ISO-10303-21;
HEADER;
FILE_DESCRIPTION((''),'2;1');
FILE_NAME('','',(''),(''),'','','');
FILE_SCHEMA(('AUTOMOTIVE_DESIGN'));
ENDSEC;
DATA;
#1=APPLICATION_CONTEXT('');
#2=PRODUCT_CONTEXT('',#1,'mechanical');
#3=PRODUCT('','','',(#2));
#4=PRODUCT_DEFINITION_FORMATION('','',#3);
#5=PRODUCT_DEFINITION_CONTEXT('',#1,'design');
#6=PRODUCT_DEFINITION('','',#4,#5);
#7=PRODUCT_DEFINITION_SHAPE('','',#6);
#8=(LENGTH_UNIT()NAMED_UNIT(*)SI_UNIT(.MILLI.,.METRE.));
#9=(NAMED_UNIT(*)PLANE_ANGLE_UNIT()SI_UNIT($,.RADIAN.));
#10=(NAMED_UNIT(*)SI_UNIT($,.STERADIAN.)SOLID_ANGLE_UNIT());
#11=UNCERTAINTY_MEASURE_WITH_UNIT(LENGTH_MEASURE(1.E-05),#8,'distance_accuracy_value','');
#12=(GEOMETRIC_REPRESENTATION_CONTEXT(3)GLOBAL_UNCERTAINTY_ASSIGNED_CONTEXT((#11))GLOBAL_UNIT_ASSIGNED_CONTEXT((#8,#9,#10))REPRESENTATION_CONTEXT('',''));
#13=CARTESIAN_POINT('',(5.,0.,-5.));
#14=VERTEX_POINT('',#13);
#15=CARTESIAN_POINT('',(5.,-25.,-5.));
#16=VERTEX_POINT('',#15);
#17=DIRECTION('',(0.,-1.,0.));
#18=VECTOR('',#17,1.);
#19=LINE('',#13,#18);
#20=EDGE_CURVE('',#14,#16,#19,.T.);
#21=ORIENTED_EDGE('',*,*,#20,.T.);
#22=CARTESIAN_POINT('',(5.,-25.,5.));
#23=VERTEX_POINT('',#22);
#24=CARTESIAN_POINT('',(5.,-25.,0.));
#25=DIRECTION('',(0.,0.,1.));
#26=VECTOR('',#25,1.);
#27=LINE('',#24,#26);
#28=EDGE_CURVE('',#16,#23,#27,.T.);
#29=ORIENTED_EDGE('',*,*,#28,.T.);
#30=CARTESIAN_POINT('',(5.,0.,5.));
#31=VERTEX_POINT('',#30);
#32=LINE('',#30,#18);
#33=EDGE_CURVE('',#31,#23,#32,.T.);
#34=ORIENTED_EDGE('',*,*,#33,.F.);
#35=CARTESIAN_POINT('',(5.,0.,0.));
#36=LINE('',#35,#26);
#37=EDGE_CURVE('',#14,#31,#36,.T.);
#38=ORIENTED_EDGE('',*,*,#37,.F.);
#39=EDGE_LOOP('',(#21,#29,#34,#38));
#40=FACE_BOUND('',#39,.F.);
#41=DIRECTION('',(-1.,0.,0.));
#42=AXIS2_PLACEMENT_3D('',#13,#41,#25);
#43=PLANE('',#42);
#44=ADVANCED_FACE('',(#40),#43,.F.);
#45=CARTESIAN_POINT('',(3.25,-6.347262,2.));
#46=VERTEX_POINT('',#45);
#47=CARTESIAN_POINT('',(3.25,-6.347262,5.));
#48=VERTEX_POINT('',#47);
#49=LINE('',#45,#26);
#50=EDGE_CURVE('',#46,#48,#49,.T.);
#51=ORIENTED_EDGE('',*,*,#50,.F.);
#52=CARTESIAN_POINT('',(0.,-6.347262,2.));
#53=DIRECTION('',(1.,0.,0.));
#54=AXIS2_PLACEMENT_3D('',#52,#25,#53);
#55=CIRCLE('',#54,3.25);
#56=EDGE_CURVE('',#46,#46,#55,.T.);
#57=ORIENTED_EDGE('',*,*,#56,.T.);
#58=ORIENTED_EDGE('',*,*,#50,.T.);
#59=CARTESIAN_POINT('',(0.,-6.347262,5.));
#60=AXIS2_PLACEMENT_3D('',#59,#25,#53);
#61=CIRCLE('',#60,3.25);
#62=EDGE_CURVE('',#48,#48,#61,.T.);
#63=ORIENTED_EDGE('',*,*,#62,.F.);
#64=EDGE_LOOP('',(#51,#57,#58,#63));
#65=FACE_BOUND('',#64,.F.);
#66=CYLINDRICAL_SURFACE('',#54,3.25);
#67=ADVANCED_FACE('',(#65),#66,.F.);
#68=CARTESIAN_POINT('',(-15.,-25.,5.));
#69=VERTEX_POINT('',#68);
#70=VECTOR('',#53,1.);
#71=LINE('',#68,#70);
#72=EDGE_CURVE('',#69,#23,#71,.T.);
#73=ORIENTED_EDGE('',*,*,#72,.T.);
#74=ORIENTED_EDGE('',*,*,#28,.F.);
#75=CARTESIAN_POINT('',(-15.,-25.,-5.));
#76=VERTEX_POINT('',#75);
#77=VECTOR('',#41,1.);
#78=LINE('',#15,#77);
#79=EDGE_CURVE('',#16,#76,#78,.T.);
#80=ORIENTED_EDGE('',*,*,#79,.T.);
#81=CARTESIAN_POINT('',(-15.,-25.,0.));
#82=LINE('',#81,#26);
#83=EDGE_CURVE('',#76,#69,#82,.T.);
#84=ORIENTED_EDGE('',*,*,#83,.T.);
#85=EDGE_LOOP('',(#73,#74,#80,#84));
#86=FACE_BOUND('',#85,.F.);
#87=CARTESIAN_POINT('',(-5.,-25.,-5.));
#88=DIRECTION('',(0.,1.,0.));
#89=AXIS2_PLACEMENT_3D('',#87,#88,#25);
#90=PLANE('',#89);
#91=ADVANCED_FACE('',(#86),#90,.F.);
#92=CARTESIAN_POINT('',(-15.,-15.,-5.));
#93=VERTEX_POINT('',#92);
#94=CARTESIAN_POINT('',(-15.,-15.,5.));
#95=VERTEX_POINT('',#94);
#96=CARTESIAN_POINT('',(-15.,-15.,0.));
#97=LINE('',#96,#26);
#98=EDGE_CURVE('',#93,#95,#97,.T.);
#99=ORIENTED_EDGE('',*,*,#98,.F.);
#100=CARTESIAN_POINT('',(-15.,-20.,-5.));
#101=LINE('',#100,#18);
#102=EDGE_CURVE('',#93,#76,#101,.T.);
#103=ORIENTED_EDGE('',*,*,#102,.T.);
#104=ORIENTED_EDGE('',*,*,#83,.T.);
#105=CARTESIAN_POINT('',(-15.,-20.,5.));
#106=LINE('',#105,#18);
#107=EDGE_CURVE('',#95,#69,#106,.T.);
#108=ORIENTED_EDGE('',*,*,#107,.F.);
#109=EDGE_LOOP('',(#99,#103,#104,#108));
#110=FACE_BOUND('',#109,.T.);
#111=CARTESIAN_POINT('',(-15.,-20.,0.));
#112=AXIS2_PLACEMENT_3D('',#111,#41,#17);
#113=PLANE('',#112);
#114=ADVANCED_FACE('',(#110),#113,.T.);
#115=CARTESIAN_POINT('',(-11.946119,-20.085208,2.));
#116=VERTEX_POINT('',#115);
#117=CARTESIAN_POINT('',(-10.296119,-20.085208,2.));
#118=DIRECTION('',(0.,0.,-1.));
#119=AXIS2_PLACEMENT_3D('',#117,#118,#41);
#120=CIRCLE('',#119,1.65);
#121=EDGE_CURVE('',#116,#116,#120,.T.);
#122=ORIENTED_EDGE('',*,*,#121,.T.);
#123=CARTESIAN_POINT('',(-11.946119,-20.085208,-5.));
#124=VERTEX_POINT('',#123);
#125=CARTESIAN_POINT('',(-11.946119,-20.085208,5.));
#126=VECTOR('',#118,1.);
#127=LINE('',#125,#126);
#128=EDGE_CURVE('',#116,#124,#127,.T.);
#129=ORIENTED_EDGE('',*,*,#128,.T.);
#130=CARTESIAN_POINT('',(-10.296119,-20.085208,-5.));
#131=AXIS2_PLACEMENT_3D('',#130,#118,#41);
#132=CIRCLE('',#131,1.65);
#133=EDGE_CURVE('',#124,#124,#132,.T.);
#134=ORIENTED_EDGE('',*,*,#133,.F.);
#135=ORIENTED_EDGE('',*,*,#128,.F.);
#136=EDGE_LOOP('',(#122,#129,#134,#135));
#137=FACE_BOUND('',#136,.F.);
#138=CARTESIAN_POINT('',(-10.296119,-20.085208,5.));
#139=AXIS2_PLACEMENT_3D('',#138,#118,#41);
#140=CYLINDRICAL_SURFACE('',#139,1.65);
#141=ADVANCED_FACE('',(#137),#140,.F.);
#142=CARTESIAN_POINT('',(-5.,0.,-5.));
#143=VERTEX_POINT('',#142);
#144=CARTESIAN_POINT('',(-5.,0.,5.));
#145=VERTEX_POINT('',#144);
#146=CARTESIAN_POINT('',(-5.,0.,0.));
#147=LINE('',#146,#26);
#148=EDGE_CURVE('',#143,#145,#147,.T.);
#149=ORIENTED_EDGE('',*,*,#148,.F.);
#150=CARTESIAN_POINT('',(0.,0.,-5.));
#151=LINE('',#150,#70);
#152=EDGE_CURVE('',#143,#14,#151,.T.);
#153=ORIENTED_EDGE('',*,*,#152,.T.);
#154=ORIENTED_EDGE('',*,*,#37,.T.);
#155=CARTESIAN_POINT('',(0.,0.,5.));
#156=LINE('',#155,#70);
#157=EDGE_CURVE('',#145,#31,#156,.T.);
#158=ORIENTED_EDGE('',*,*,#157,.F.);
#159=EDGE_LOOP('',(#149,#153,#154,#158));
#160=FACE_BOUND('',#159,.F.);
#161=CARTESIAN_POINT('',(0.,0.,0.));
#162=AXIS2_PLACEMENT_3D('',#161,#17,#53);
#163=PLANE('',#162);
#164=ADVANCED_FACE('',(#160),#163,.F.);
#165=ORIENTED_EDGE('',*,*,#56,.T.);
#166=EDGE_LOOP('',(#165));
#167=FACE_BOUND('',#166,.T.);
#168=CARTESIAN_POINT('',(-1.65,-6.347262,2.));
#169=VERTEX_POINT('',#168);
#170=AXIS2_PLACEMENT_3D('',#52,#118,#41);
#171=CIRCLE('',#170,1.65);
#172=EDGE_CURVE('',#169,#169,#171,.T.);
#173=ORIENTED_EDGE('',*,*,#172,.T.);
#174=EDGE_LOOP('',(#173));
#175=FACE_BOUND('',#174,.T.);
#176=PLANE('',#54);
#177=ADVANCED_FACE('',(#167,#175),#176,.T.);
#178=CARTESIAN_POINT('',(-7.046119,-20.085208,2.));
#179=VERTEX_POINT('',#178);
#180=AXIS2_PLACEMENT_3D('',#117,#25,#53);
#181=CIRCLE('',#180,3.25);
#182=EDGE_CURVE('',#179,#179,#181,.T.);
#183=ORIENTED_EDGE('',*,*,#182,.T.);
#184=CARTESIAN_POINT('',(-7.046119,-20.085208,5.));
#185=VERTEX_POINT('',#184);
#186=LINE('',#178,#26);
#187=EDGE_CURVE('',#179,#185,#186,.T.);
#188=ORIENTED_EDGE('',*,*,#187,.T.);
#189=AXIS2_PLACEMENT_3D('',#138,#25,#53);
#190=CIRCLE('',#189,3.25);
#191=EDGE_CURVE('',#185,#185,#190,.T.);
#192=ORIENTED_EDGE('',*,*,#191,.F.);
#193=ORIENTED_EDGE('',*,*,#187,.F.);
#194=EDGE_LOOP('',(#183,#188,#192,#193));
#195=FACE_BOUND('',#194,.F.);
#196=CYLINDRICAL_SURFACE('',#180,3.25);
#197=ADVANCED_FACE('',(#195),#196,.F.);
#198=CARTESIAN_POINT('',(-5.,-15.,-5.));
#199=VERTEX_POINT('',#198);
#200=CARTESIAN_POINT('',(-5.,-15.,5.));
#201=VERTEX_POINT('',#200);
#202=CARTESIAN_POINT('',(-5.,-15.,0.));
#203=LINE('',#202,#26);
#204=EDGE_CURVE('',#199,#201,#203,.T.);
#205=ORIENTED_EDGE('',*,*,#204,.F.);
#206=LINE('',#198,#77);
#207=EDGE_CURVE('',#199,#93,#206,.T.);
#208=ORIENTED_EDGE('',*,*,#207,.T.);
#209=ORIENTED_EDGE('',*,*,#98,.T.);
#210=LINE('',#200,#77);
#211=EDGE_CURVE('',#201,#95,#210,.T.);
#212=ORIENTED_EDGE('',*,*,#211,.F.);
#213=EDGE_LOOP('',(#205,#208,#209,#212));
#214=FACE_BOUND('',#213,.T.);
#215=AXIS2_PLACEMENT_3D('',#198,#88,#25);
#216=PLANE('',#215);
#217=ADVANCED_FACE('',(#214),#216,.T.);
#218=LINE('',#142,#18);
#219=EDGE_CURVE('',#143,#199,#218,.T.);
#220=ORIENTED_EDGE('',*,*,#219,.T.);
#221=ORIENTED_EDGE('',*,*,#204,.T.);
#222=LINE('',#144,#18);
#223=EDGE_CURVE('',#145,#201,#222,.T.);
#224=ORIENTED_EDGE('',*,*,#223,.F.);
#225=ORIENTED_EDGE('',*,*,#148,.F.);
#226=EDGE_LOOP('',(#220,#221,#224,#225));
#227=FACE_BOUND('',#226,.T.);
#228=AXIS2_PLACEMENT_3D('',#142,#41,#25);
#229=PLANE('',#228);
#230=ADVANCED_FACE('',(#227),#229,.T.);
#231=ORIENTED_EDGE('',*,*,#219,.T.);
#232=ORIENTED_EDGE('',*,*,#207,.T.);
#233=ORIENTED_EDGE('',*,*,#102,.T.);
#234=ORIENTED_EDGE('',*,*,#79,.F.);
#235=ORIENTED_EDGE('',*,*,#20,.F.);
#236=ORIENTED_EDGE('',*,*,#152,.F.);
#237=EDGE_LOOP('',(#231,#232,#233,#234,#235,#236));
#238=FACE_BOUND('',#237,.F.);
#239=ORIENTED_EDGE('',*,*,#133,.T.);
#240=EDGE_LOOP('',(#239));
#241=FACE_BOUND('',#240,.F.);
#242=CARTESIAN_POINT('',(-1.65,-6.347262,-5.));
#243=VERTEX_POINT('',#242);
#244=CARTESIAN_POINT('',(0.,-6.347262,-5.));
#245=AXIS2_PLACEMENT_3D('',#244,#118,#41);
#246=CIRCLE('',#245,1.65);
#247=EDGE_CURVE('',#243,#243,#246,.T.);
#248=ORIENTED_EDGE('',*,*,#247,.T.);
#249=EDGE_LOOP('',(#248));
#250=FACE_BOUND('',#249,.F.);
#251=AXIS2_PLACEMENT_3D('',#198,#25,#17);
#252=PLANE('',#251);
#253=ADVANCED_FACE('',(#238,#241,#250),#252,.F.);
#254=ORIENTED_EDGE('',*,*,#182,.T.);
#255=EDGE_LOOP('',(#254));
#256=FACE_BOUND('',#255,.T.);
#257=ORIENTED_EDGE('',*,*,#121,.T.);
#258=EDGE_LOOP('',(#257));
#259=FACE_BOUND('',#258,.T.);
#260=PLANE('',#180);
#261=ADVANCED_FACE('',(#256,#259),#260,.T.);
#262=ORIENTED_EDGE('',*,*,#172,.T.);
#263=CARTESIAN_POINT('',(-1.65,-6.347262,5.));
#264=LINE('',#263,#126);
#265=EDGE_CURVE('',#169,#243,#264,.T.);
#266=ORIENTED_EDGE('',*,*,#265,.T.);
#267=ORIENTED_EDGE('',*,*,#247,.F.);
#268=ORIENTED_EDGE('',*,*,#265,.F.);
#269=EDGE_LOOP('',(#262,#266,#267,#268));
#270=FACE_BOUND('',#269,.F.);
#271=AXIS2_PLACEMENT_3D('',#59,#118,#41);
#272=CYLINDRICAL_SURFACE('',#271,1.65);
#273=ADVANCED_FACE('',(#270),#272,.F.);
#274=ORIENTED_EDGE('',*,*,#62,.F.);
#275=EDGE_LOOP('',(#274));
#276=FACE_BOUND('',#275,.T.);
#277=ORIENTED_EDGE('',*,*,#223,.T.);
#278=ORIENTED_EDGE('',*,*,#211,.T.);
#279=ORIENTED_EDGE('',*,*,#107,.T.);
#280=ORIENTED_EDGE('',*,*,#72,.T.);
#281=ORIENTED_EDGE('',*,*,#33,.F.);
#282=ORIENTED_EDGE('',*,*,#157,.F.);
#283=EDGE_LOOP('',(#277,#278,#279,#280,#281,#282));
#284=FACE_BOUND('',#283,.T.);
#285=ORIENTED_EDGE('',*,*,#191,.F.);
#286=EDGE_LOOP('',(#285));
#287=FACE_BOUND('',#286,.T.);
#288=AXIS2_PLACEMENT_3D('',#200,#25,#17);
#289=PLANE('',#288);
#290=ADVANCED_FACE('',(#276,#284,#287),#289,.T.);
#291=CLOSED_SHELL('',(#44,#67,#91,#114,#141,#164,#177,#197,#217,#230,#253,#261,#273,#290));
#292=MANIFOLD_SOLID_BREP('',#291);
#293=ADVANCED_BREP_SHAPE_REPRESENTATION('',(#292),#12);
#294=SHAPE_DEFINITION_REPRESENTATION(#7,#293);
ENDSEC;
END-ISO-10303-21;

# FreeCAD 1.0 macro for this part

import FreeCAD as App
import Part
import Sketcher
from FreeCAD import Vector
Q = App.Units.Quantity

doc = App.newDocument("Part")
params = doc.addObject("Spreadsheet::Sheet", "Params")
for row, (alias, value) in enumerate([
    ("sketch1_width", "10 mm"),
    ("pad1_length", "25 mm"),
    ("sketch2_width", "10 mm"),
    ("pad2_length", "10 mm"),
    ("sketch3_diameter", "3.3 mm"),
    ("hole_diameter", "3.3 mm"),
    ("hole_cbore_diameter", "6.5 mm"),
    ("hole_cbore_depth", "3 mm"),
], start=1):
    params.set(f"A{row}", alias)
    params.set(f"B{row}", "=" + value)
    params.setAlias(f"B{row}", alias)

body = doc.addObject("PartDesign::Body", "Body")

# Sketch on XZ plane
sketch1 = body.newObject("Sketcher::SketchObject", "Sketch")
sketch1.AttachmentSupport = (doc.getObject("XZ_Plane"), [""])
sketch1.MapMode = "FlatFace"
sketch1.addGeometry(Part.LineSegment(Vector(-5, 5, 0), Vector(-5, -5, 0)), False)
sketch1.addGeometry(Part.LineSegment(Vector(-5, -5, 0), Vector(5, -5, 0)), False)
sketch1.addGeometry(Part.LineSegment(Vector(5, -5, 0), Vector(5, 5, 0)), False)
sketch1.addGeometry(Part.LineSegment(Vector(5, 5, 0), Vector(-5, 5, 0)), False)
sketch1.addConstraint(Sketcher.Constraint("Coincident", 0, 2, 1, 1))
sketch1.addConstraint(Sketcher.Constraint("Coincident", 1, 2, 2, 1))
sketch1.addConstraint(Sketcher.Constraint("Coincident", 2, 2, 3, 1))
sketch1.addConstraint(Sketcher.Constraint("Coincident", 3, 2, 0, 1))
sketch1.addConstraint(Sketcher.Constraint("Vertical", 0))
sketch1.addConstraint(Sketcher.Constraint("Horizontal", 1))
sketch1.addConstraint(Sketcher.Constraint("Vertical", 2))
sketch1.addConstraint(Sketcher.Constraint("Horizontal", 3))
sketch1.addConstraint(Sketcher.Constraint("Symmetric", 0, 2, 2, 2, -1, 1))
sketch1.addConstraint(Sketcher.Constraint("Equal", 3, 0))
sketch1.addConstraint(Sketcher.Constraint("DistanceX", 1, 1, 1, 2, Q("10 mm")))
sketch1.setExpression("Constraints[10]", "Params.sketch1_width")
pad1 = body.newObject("PartDesign::Pad", "Pad")
pad1.Profile = sketch1
pad1.setExpression("Length", "Params.pad1_length")

# Sketch on YZ plane
sketch2 = body.newObject("Sketcher::SketchObject", "Sketch001")
sketch2.AttachmentSupport = (doc.getObject("YZ_Plane"), [""])
sketch2.MapMode = "FlatFace"
sketch2.AttachmentOffset = App.Placement(Vector(0, 0, -5), App.Rotation())
sketch2.addGeometry(Part.LineSegment(Vector(-15, 5, 0), Vector(-15, -5, 0)), False)
sketch2.addGeometry(Part.LineSegment(Vector(-15, -5, 0), Vector(-25, -5, 0)), False)
sketch2.addGeometry(Part.LineSegment(Vector(-25, -5, 0), Vector(-25, 5, 0)), False)
sketch2.addGeometry(Part.LineSegment(Vector(-25, 5, 0), Vector(-15, 5, 0)), False)
sketch2.addConstraint(Sketcher.Constraint("Coincident", 0, 2, 1, 1))
sketch2.addConstraint(Sketcher.Constraint("Coincident", 1, 2, 2, 1))
sketch2.addConstraint(Sketcher.Constraint("Coincident", 2, 2, 3, 1))
sketch2.addConstraint(Sketcher.Constraint("Coincident", 3, 2, 0, 1))
sketch2.addConstraint(Sketcher.Constraint("Vertical", 0))
sketch2.addConstraint(Sketcher.Constraint("Horizontal", 1))
sketch2.addConstraint(Sketcher.Constraint("Vertical", 2))
sketch2.addConstraint(Sketcher.Constraint("Horizontal", 3))
sketch2.addConstraint(Sketcher.Constraint("Equal", 3, 0))
sketch2.addConstraint(Sketcher.Constraint("DistanceX", 1, 2, 1, 1, Q("10 mm")))
sketch2.addConstraint(Sketcher.Constraint("DistanceX", 0, 2, -1, 1, Q("15 mm")))
sketch2.addConstraint(Sketcher.Constraint("DistanceY", 0, 2, -1, 1, Q("5 mm")))
sketch2.setExpression("Constraints[9]", "Params.sketch2_width")
pad2 = body.newObject("PartDesign::Pad", "Pad001")
pad2.Profile = sketch2
pad2.setExpression("Length", "Params.pad2_length")
pad2.Reversed = True

# Sketch on XY plane
sketch3 = body.newObject("Sketcher::SketchObject", "Sketch002")
sketch3.AttachmentSupport = (doc.getObject("XY_Plane"), [""])
sketch3.MapMode = "FlatFace"
sketch3.AttachmentOffset = App.Placement(Vector(0, 0, 5), App.Rotation())
sketch3.addGeometry(Part.Circle(Vector(0, -6.3, 0), Vector(0, 0, 1), 1.6), False)
sketch3.addGeometry(Part.Circle(Vector(-10.3, -20.1, 0), Vector(0, 0, 1), 1.6), False)
sketch3.addConstraint(Sketcher.Constraint("Equal", 0, 1))
sketch3.addConstraint(Sketcher.Constraint("PointOnObject", 0, 3, -2))
sketch3.addConstraint(Sketcher.Constraint("Diameter", 0, Q("3.3 mm")))
sketch3.addConstraint(Sketcher.Constraint("DistanceY", 0, 3, -1, 1, Q("6.347262 mm")))
sketch3.addConstraint(Sketcher.Constraint("DistanceX", 1, 3, -1, 1, Q("10.296119 mm")))
sketch3.addConstraint(Sketcher.Constraint("DistanceY", 1, 3, -1, 1, Q("20.085208 mm")))
sketch3.setExpression("Constraints[2]", "Params.sketch3_diameter")
doc.recompute()
hole = body.newObject("PartDesign::Hole", "Hole")
hole.Profile = sketch3
hole.ThreadType = "None"
hole.setExpression("Diameter", "Params.hole_diameter")
hole.DepthType = "ThroughAll"
hole.HoleCutType = "Counterbore"
hole.setExpression("HoleCutDiameter", "Params.hole_cbore_diameter")
hole.setExpression("HoleCutDepth", "Params.hole_cbore_depth")

doc.recompute()
